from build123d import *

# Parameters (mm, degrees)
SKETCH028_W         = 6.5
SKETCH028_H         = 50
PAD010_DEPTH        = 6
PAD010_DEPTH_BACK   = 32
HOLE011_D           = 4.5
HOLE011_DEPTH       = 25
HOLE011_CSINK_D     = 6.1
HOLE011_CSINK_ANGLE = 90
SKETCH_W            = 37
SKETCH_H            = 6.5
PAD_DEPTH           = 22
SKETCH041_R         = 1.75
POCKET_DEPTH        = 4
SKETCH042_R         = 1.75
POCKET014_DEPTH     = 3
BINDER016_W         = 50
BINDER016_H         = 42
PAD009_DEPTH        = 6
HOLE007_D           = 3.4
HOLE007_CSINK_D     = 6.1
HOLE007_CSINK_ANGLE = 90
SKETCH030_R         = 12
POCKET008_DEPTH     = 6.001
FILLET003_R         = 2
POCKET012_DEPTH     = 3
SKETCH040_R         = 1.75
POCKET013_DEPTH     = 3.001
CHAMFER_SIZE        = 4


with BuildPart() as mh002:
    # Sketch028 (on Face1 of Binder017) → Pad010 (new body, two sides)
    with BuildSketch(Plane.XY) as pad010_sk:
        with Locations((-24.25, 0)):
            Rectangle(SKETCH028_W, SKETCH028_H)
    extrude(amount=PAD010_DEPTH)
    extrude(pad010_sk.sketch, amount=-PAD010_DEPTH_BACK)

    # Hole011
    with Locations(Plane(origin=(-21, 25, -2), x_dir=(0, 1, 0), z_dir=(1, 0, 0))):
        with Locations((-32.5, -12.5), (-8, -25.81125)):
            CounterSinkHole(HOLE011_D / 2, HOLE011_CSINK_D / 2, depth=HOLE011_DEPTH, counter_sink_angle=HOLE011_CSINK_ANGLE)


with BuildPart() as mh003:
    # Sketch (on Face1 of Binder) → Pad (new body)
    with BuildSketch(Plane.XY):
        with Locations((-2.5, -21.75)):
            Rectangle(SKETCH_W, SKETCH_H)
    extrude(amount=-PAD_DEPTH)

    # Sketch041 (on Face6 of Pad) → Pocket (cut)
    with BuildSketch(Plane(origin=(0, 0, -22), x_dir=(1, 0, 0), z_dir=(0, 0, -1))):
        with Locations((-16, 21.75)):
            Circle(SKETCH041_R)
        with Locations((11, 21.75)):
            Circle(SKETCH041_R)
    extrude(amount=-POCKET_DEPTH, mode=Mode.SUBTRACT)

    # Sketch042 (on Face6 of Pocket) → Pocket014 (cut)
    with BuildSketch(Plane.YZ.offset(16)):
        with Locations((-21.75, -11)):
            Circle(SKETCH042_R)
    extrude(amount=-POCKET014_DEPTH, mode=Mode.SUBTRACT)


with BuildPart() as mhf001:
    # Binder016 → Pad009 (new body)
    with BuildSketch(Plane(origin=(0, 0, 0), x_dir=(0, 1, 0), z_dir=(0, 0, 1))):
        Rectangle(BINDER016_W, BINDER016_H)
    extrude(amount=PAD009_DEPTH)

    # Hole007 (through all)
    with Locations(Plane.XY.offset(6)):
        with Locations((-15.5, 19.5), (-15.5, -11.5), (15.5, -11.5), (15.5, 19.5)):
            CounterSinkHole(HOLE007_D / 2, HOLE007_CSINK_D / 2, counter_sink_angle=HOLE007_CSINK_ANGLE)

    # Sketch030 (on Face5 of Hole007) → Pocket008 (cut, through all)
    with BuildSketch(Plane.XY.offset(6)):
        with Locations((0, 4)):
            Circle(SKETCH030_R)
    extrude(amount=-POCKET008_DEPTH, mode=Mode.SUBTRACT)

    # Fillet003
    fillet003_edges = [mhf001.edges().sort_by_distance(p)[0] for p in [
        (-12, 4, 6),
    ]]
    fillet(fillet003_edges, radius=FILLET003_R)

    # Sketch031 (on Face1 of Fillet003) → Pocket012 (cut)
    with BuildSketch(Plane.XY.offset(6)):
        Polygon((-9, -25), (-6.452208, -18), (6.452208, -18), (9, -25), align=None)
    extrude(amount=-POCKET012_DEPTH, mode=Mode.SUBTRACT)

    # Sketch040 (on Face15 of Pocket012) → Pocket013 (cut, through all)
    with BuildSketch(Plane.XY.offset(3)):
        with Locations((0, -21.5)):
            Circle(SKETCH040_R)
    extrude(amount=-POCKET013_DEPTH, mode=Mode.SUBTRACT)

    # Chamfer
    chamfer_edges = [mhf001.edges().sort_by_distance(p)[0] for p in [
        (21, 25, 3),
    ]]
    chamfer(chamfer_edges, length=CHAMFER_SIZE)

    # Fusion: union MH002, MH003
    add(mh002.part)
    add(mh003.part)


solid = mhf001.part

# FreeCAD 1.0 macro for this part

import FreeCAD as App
import Part
import Sketcher
Q = App.Units.Quantity


def edges_at(feature, points):
    """Names of the edges that pass closest to the given points."""
    edges = feature.Shape.Edges
    near = lambda p: min(range(len(edges)), key=lambda i: edges[i].distToShape(Part.Vertex(*p))[0])
    return sorted({f"Edge{near(p) + 1}" for p in points})

doc = App.newDocument("Part")
params = doc.addObject("Spreadsheet::Sheet", "Params")
for row, (alias, value) in enumerate([
    ("sketch1_height", "50 mm"),
    ("sketch1_width", "6.5 mm"),
    ("pad1_length", "6 mm"),
    ("pad1_length2", "32 mm"),
    ("sketch2_diameter", "4.5 mm"),
    ("hole_diameter", "4.5 mm"),
    ("hole_depth", "25 mm"),
    ("hole_csink_diameter", "6.1 mm"),
    ("sketch3_width", "37 mm"),
    ("sketch3_height", "6.5 mm"),
    ("pad2_length", "22 mm"),
    ("sketch4_diameter", "3.5 mm"),
    ("pocket1_length", "4 mm"),
    ("sketch5_diameter", "3.5 mm"),
    ("pocket2_length", "3 mm"),
    ("sketch6_width", "42 mm"),
    ("sketch6_height", "50 mm"),
    ("pad3_length", "6 mm"),
    ("sketch7_diameter", "3.4 mm"),
    ("hole2_diameter", "3.4 mm"),
    ("hole2_csink_diameter", "6.1 mm"),
    ("sketch8_diameter", "24 mm"),
    ("fillet_radius", "2 mm"),
    ("sketch9_width", "18 mm"),
    ("pocket4_length", "3 mm"),
    ("sketch10_diameter", "3.5 mm"),
    ("chamfer_size", "4 mm"),
], start=1):
    params.set(f"A{row}", alias)
    params.set(f"B{row}", "=" + value)
    params.setAlias(f"B{row}", alias)

body = doc.addObject("PartDesign::Body", "Body")

# Sketch on XY plane
sketch1 = body.newObject("Sketcher::SketchObject", "Sketch")
sketch1.AttachmentSupport = (doc.getObject("XY_Plane"), [""])
sketch1.MapMode = "FlatFace"
sketch1.addGeometry(Part.LineSegment(App.Vector(-28, 25, 0), App.Vector(-28, -25, 0)), False)
sketch1.addGeometry(Part.LineSegment(App.Vector(-28, -25, 0), App.Vector(-21, -25, 0)), False)
sketch1.addGeometry(Part.LineSegment(App.Vector(-21, -25, 0), App.Vector(-21, 25, 0)), False)
sketch1.addGeometry(Part.LineSegment(App.Vector(-21, 25, 0), App.Vector(-28, 25, 0)), False)
sketch1.addConstraint(Sketcher.Constraint("Coincident", 0, 2, 1, 1))
sketch1.addConstraint(Sketcher.Constraint("Coincident", 1, 2, 2, 1))
sketch1.addConstraint(Sketcher.Constraint("Coincident", 2, 2, 3, 1))
sketch1.addConstraint(Sketcher.Constraint("Coincident", 3, 2, 0, 1))
sketch1.addConstraint(Sketcher.Constraint("Vertical", 0))
sketch1.addConstraint(Sketcher.Constraint("Horizontal", 1))
sketch1.addConstraint(Sketcher.Constraint("Vertical", 2))
sketch1.addConstraint(Sketcher.Constraint("Horizontal", 3))
sketch1.addConstraint(Sketcher.Constraint("DistanceY", 0, 2, 0, 1, 50.0))
sketch1.addConstraint(Sketcher.Constraint("DistanceX", 1, 1, 1, 2, 6.5))
sketch1.addConstraint(Sketcher.Constraint("DistanceY", 0, 2, -1, 1, 25.0))
sketch1.addConstraint(Sketcher.Constraint("DistanceX", 1, 2, -1, 1, 21.0))
sketch1.setExpression("Constraints[8]", "Params.sketch1_height")
sketch1.setExpression("Constraints[9]", "Params.sketch1_width")
pad1 = body.newObject("PartDesign::Pad", "Pad")
pad1.Profile = sketch1
pad1.Type = "TwoLengths"
pad1.setExpression("Length", "Params.pad1_length")
pad1.setExpression("Length2", "Params.pad1_length2")

# Sketch on YZ plane
sketch2 = body.newObject("Sketcher::SketchObject", "Sketch001")
sketch2.AttachmentSupport = (doc.getObject("YZ_Plane"), [""])
sketch2.MapMode = "FlatFace"
sketch2.AttachmentOffset = App.Placement(App.Vector(0, 0, -21), App.Rotation())
sketch2.addGeometry(Part.Circle(App.Vector(-7.5, -14.5, 0), App.Vector(0, 0, 1), 2.2), False)
sketch2.addGeometry(Part.Circle(App.Vector(17, -27.8, 0), App.Vector(0, 0, 1), 2.2), False)
sketch2.addConstraint(Sketcher.Constraint("Equal", 0, 1))
sketch2.addConstraint(Sketcher.Constraint("Diameter", 0, 4.5))
sketch2.addConstraint(Sketcher.Constraint("DistanceX", -1, 1, 1, 3, 17.0))
sketch2.addConstraint(Sketcher.Constraint("DistanceX", 0, 3, -1, 1, 7.5))
sketch2.addConstraint(Sketcher.Constraint("DistanceY", 0, 3, -1, 1, 14.5))
sketch2.addConstraint(Sketcher.Constraint("DistanceY", 1, 3, -1, 1, 27.81125))
sketch2.setExpression("Constraints[1]", "Params.sketch2_diameter")
doc.recompute()
hole = body.newObject("PartDesign::Hole", "Hole")
hole.Profile = sketch2
hole.ThreadType = "None"
hole.setExpression("Diameter", "Params.hole_diameter")
hole.DepthType = "Dimension"
hole.setExpression("Depth", "Params.hole_depth")
hole.DrillPoint = "Flat"
hole.HoleCutType = "Countersink"
hole.setExpression("HoleCutDiameter", "Params.hole_csink_diameter")
hole.HoleCutCountersinkAngle = 90
body2 = doc.addObject("PartDesign::Body", "Body001")

# Sketch on XY plane
sketch3 = body2.newObject("Sketcher::SketchObject", "Sketch002")
sketch3.AttachmentSupport = (doc.getObject("XY_Plane001"), [""])
sketch3.MapMode = "FlatFace"
sketch3.addGeometry(Part.LineSegment(App.Vector(-21, -18, 0), App.Vector(-21, -25, 0)), False)
sketch3.addGeometry(Part.LineSegment(App.Vector(-21, -25, 0), App.Vector(16, -25, 0)), False)
sketch3.addGeometry(Part.LineSegment(App.Vector(16, -25, 0), App.Vector(16, -18, 0)), False)
sketch3.addGeometry(Part.LineSegment(App.Vector(16, -18, 0), App.Vector(-21, -18, 0)), False)
sketch3.addConstraint(Sketcher.Constraint("Coincident", 0, 2, 1, 1))
sketch3.addConstraint(Sketcher.Constraint("Coincident", 1, 2, 2, 1))
sketch3.addConstraint(Sketcher.Constraint("Coincident", 2, 2, 3, 1))
sketch3.addConstraint(Sketcher.Constraint("Coincident", 3, 2, 0, 1))
sketch3.addConstraint(Sketcher.Constraint("Vertical", 0))
sketch3.addConstraint(Sketcher.Constraint("Horizontal", 1))
sketch3.addConstraint(Sketcher.Constraint("Vertical", 2))
sketch3.addConstraint(Sketcher.Constraint("Horizontal", 3))
sketch3.addConstraint(Sketcher.Constraint("DistanceX", 1, 1, 1, 2, 37.0))
sketch3.addConstraint(Sketcher.Constraint("DistanceY", 0, 2, 0, 1, 6.5))
sketch3.addConstraint(Sketcher.Constraint("DistanceX", 0, 2, -1, 1, 21.0))
sketch3.addConstraint(Sketcher.Constraint("DistanceY", 0, 2, -1, 1, 25.0))
sketch3.setExpression("Constraints[8]", "Params.sketch3_width")
sketch3.setExpression("Constraints[9]", "Params.sketch3_height")
pad2 = body2.newObject("PartDesign::Pad", "Pad001")
pad2.Profile = sketch3
pad2.setExpression("Length", "Params.pad2_length")
pad2.Reversed = True

# Sketch on XY plane
sketch4 = body2.newObject("Sketcher::SketchObject", "Sketch003")
sketch4.AttachmentSupport = (doc.getObject("XY_Plane001"), [""])
sketch4.MapMode = "FlatFace"
sketch4.AttachmentOffset = App.Placement(App.Vector(0, 0, -22), App.Rotation())
sketch4.addGeometry(Part.Circle(App.Vector(-16, -21.8, 0), App.Vector(0, 0, 1), 1.8), False)
sketch4.addGeometry(Part.Circle(App.Vector(11, -21.8, 0), App.Vector(0, 0, 1), 1.8), False)
sketch4.addConstraint(Sketcher.Constraint("Equal", 0, 1))
sketch4.addConstraint(Sketcher.Constraint("Horizontal", 0, 3, 1, 3))
sketch4.addConstraint(Sketcher.Constraint("Diameter", 0, 3.5))
sketch4.addConstraint(Sketcher.Constraint("DistanceX", 0, 3, -1, 1, 16.0))
sketch4.addConstraint(Sketcher.Constraint("DistanceX", -1, 1, 1, 3, 11.0))
sketch4.addConstraint(Sketcher.Constraint("DistanceY", 0, 3, -1, 1, 21.75))
sketch4.setExpression("Constraints[2]", "Params.sketch4_diameter")
pocket1 = body2.newObject("PartDesign::Pocket", "Pocket")
pocket1.Profile = sketch4
pocket1.setExpression("Length", "Params.pocket1_length")
pocket1.Reversed = True

# Sketch on YZ plane
sketch5 = body2.newObject("Sketcher::SketchObject", "Sketch004")
sketch5.AttachmentSupport = (doc.getObject("YZ_Plane001"), [""])
sketch5.MapMode = "FlatFace"
sketch5.AttachmentOffset = App.Placement(App.Vector(0, 0, 16), App.Rotation())
sketch5.addGeometry(Part.Circle(App.Vector(-21.8, -11, 0), App.Vector(0, 0, 1), 1.8), False)
sketch5.addConstraint(Sketcher.Constraint("Diameter", 0, 3.5))
sketch5.addConstraint(Sketcher.Constraint("DistanceY", 0, 3, -1, 1, 11.0))
sketch5.addConstraint(Sketcher.Constraint("DistanceX", 0, 3, -1, 1, 21.75))
sketch5.setExpression("Constraints[0]", "Params.sketch5_diameter")
pocket2 = body2.newObject("PartDesign::Pocket", "Pocket001")
pocket2.Profile = sketch5
pocket2.setExpression("Length", "Params.pocket2_length")
body3 = doc.addObject("PartDesign::Body", "Body002")

# Sketch on XY plane
sketch6 = body3.newObject("Sketcher::SketchObject", "Sketch005")
sketch6.AttachmentSupport = (doc.getObject("XY_Plane002"), [""])
sketch6.MapMode = "FlatFace"
sketch6.addGeometry(Part.LineSegment(App.Vector(-21, -25, 0), App.Vector(21, -25, 0)), False)
sketch6.addGeometry(Part.LineSegment(App.Vector(21, -25, 0), App.Vector(21, 25, 0)), False)
sketch6.addGeometry(Part.LineSegment(App.Vector(21, 25, 0), App.Vector(-21, 25, 0)), False)
sketch6.addGeometry(Part.LineSegment(App.Vector(-21, 25, 0), App.Vector(-21, -25, 0)), False)
sketch6.addConstraint(Sketcher.Constraint("Coincident", 0, 2, 1, 1))
sketch6.addConstraint(Sketcher.Constraint("Coincident", 1, 2, 2, 1))
sketch6.addConstraint(Sketcher.Constraint("Coincident", 2, 2, 3, 1))
sketch6.addConstraint(Sketcher.Constraint("Coincident", 3, 2, 0, 1))
sketch6.addConstraint(Sketcher.Constraint("Horizontal", 0))
sketch6.addConstraint(Sketcher.Constraint("Vertical", 1))
sketch6.addConstraint(Sketcher.Constraint("Horizontal", 2))
sketch6.addConstraint(Sketcher.Constraint("Vertical", 3))
sketch6.addConstraint(Sketcher.Constraint("Symmetric", 0, 2, 2, 2, -1, 1))
sketch6.addConstraint(Sketcher.Constraint("DistanceX", 0, 1, 0, 2, 42.0))
sketch6.addConstraint(Sketcher.Constraint("DistanceY", 1, 1, 1, 2, 50.0))
sketch6.setExpression("Constraints[9]", "Params.sketch6_width")
sketch6.setExpression("Constraints[10]", "Params.sketch6_height")
pad3 = body3.newObject("PartDesign::Pad", "Pad002")
pad3.Profile = sketch6
pad3.setExpression("Length", "Params.pad3_length")

# Sketch on XY plane
sketch7 = body3.newObject("Sketcher::SketchObject", "Sketch006")
sketch7.AttachmentSupport = (doc.getObject("XY_Plane002"), [""])
sketch7.MapMode = "FlatFace"
sketch7.AttachmentOffset = App.Placement(App.Vector(0, 0, 6), App.Rotation())
sketch7.addGeometry(Part.Circle(App.Vector(-15.5, 19.5, 0), App.Vector(0, 0, 1), 1.7), False)
sketch7.addGeometry(Part.Circle(App.Vector(-15.5, -11.5, 0), App.Vector(0, 0, 1), 1.7), False)
sketch7.addGeometry(Part.Circle(App.Vector(15.5, -11.5, 0), App.Vector(0, 0, 1), 1.7), False)
sketch7.addGeometry(Part.Circle(App.Vector(15.5, 19.5, 0), App.Vector(0, 0, 1), 1.7), False)
sketch7.addConstraint(Sketcher.Constraint("Equal", 0, 1))
sketch7.addConstraint(Sketcher.Constraint("Equal", 1, 2))
sketch7.addConstraint(Sketcher.Constraint("Equal", 2, 3))
sketch7.addConstraint(Sketcher.Constraint("Symmetric", 1, 3, 2, 3, -2))
sketch7.addConstraint(Sketcher.Constraint("Symmetric", 0, 3, 3, 3, -2))
sketch7.addConstraint(Sketcher.Constraint("Vertical", 0, 3, 1, 3))
sketch7.addConstraint(Sketcher.Constraint("Diameter", 0, 3.4))
sketch7.addConstraint(Sketcher.Constraint("DistanceY", 1, 3, 0, 3, 31.0))
sketch7.addConstraint(Sketcher.Constraint("DistanceX", 1, 3, 2, 3, 31.0))
sketch7.addConstraint(Sketcher.Constraint("DistanceY", -1, 1, 0, 3, 19.5))
sketch7.setExpression("Constraints[6]", "Params.sketch7_diameter")
doc.recompute()
hole2 = body3.newObject("PartDesign::Hole", "Hole001")
hole2.Profile = sketch7
hole2.ThreadType = "None"
hole2.setExpression("Diameter", "Params.hole2_diameter")
hole2.DepthType = "ThroughAll"
hole2.HoleCutType = "Countersink"
hole2.setExpression("HoleCutDiameter", "Params.hole2_csink_diameter")
hole2.HoleCutCountersinkAngle = 90

# Sketch on XY plane
sketch8 = body3.newObject("Sketcher::SketchObject", "Sketch007")
sketch8.AttachmentSupport = (doc.getObject("XY_Plane002"), [""])
sketch8.MapMode = "FlatFace"
sketch8.AttachmentOffset = App.Placement(App.Vector(0, 0, 6), App.Rotation())
sketch8.addGeometry(Part.Circle(App.Vector(0, 4, 0), App.Vector(0, 0, 1), 12), False)
sketch8.addConstraint(Sketcher.Constraint("PointOnObject", 0, 3, -2))
sketch8.addConstraint(Sketcher.Constraint("Diameter", 0, 24.0))
sketch8.addConstraint(Sketcher.Constraint("DistanceY", -1, 1, 0, 3, 4.0))
sketch8.setExpression("Constraints[1]", "Params.sketch8_diameter")
pocket3 = body3.newObject("PartDesign::Pocket", "Pocket002")
pocket3.Profile = sketch8
pocket3.Type = "ThroughAll"
doc.recompute()

fillet = body3.newObject("PartDesign::Fillet", "Fillet")
fillet.Base = (pocket3, edges_at(pocket3, [(-12, 4, 6)]))
fillet.setExpression("Radius", "Params.fillet_radius")

# Sketch on XY plane
sketch9 = body3.newObject("Sketcher::SketchObject", "Sketch008")
sketch9.AttachmentSupport = (doc.getObject("XY_Plane002"), [""])
sketch9.MapMode = "FlatFace"
sketch9.AttachmentOffset = App.Placement(App.Vector(0, 0, 6), App.Rotation())
sketch9.addGeometry(Part.LineSegment(App.Vector(-6, -18, 0), App.Vector(-9, -25, 0)), False)
sketch9.addGeometry(Part.LineSegment(App.Vector(-9, -25, 0), App.Vector(9, -25, 0)), False)
sketch9.addGeometry(Part.LineSegment(App.Vector(9, -25, 0), App.Vector(6, -18, 0)), False)
sketch9.addGeometry(Part.LineSegment(App.Vector(6, -18, 0), App.Vector(-6, -18, 0)), False)
sketch9.addConstraint(Sketcher.Constraint("Coincident", 0, 2, 1, 1))
sketch9.addConstraint(Sketcher.Constraint("Coincident", 1, 2, 2, 1))
sketch9.addConstraint(Sketcher.Constraint("Coincident", 2, 2, 3, 1))
sketch9.addConstraint(Sketcher.Constraint("Coincident", 3, 2, 0, 1))
sketch9.addConstraint(Sketcher.Constraint("Horizontal", 1))
sketch9.addConstraint(Sketcher.Constraint("Horizontal", 3))
sketch9.addConstraint(Sketcher.Constraint("Equal", 0, 2))
sketch9.addConstraint(Sketcher.Constraint("DistanceX", 1, 1, 1, 2, 18.0))
sketch9.addConstraint(Sketcher.Constraint("Angle", 0, Q("-110.000003 deg")))
sketch9.addConstraint(Sketcher.Constraint("DistanceX", 0, 2, -1, 1, 9.0))
sketch9.addConstraint(Sketcher.Constraint("DistanceY", 0, 2, -1, 1, 25.0))
sketch9.addConstraint(Sketcher.Constraint("DistanceY", 2, 2, -1, 1, 18.0))
sketch9.setExpression("Constraints[7]", "Params.sketch9_width")
pocket4 = body3.newObject("PartDesign::Pocket", "Pocket003")
pocket4.Profile = sketch9
pocket4.setExpression("Length", "Params.pocket4_length")

# Sketch on XY plane
sketch10 = body3.newObject("Sketcher::SketchObject", "Sketch009")
sketch10.AttachmentSupport = (doc.getObject("XY_Plane002"), [""])
sketch10.MapMode = "FlatFace"
sketch10.AttachmentOffset = App.Placement(App.Vector(0, 0, 3), App.Rotation())
sketch10.addGeometry(Part.Circle(App.Vector(0, -21.5, 0), App.Vector(0, 0, 1), 1.8), False)
sketch10.addConstraint(Sketcher.Constraint("PointOnObject", 0, 3, -2))
sketch10.addConstraint(Sketcher.Constraint("Diameter", 0, 3.5))
sketch10.addConstraint(Sketcher.Constraint("DistanceY", 0, 3, -1, 1, 21.5))
sketch10.setExpression("Constraints[1]", "Params.sketch10_diameter")
pocket5 = body3.newObject("PartDesign::Pocket", "Pocket004")
pocket5.Profile = sketch10
pocket5.Type = "ThroughAll"
doc.recompute()

chamfer = body3.newObject("PartDesign::Chamfer", "Chamfer")
chamfer.Base = (pocket5, edges_at(pocket5, [(21, 25, 3)]))
chamfer.setExpression("Size", "Params.chamfer_size")
doc.recompute()

boolean = body3.newObject("PartDesign::Boolean", "Boolean")
boolean.Type = "Fuse"
boolean.addObjects([body])
doc.recompute()

boolean2 = body3.newObject("PartDesign::Boolean", "Boolean001")
boolean2.Type = "Fuse"
boolean2.addObjects([body2])

doc.recompute()
